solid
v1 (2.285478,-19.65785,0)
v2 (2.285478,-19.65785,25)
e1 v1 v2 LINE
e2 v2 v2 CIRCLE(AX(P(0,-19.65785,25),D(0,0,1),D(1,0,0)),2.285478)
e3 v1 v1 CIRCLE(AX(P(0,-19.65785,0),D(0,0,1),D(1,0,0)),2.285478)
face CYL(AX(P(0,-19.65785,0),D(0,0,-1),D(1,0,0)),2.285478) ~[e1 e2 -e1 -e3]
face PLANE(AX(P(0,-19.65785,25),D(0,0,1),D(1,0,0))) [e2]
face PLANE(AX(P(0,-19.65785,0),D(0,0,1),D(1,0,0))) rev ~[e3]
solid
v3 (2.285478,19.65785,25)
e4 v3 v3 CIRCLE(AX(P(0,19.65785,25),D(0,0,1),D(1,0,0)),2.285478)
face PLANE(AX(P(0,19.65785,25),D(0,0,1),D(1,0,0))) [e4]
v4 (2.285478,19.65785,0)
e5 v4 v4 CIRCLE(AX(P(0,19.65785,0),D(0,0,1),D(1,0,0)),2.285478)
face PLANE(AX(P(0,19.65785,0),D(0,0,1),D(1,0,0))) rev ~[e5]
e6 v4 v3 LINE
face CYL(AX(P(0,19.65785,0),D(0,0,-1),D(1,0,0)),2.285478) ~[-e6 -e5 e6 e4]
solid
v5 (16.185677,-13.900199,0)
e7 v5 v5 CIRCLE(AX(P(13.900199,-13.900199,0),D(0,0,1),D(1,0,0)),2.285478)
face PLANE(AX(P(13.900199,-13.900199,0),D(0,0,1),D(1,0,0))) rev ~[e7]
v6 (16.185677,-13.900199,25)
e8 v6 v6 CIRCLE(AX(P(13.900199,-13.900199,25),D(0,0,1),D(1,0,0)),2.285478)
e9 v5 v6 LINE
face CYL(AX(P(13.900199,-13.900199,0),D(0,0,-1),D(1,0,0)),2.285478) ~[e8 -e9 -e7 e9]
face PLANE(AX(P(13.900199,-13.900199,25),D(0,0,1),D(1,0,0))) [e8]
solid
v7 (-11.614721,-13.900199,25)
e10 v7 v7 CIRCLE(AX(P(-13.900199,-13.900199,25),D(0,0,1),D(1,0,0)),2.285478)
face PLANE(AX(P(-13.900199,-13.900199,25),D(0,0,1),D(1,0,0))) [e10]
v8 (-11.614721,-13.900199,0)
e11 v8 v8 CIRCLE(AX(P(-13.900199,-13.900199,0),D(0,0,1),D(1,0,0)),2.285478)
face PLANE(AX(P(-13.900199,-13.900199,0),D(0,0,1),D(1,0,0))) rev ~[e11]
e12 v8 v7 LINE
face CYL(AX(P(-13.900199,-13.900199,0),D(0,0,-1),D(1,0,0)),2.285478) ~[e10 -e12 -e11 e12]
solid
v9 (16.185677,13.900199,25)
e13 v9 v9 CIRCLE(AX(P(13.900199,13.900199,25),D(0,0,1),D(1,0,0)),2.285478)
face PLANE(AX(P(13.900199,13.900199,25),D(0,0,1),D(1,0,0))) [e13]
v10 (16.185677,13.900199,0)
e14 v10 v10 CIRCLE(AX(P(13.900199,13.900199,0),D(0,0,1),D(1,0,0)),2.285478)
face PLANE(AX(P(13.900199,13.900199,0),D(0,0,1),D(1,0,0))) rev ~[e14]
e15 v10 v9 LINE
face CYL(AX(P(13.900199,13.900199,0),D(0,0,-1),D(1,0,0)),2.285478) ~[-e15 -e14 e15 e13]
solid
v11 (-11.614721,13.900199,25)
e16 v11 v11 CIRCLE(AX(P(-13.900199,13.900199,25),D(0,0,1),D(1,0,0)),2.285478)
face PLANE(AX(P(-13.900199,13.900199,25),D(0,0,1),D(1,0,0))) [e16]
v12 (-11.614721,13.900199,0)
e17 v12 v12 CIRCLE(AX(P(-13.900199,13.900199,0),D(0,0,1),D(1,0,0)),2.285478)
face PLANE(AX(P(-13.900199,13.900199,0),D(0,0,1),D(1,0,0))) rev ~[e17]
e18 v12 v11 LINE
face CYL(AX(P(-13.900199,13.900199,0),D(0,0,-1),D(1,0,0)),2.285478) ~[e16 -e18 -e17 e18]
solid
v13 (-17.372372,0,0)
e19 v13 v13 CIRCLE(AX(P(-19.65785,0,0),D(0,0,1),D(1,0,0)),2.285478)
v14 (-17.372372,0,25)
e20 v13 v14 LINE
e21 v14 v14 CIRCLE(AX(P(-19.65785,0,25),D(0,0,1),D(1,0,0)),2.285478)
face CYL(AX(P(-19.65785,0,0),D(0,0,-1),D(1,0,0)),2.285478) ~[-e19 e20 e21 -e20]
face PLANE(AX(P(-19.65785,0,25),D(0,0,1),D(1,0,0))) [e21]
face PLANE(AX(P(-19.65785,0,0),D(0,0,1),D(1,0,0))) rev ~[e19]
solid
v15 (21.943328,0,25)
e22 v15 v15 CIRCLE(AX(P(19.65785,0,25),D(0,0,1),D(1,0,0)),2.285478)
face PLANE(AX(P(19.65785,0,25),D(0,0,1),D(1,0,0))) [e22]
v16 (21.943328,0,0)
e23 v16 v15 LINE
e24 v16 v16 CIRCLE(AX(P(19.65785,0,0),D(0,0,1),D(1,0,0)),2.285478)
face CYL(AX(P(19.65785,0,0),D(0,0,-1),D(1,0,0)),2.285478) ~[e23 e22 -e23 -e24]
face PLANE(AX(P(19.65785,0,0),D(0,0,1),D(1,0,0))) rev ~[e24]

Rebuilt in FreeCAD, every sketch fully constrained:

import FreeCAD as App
import Part
import Sketcher
from FreeCAD import Vector
Q = App.Units.Quantity

doc = App.newDocument("Part")
params = doc.addObject("Spreadsheet::Sheet", "Params")
for row, (alias, value) in enumerate([
    ("pad1_length", "25 mm"),
], start=1):
    params.set(f"A{row}", alias)
    params.set(f"B{row}", "=" + value)
    params.setAlias(f"B{row}", alias)

body = doc.addObject("PartDesign::Body", "Body")
body.AllowCompound = True

sketch1 = body.newObject("Sketcher::SketchObject", "Sketch")
sketch1.AttachmentSupport = (doc.getObject("XY_Plane"), [""])
sketch1.MapMode = "FlatFace"
sketch1.addGeometry(Part.Circle(Vector(19.7, 0, 0), Vector(0, 0, 1), 2.3), False)
sketch1.addGeometry(Part.Circle(Vector(13.9, 13.9, 0), Vector(0, 0, 1), 2.3), False)
sketch1.addGeometry(Part.Circle(Vector(0, 19.7, 0), Vector(0, 0, 1), 2.3), False)
sketch1.addGeometry(Part.Circle(Vector(-13.9, 13.9, 0), Vector(0, 0, 1), 2.3), False)
sketch1.addGeometry(Part.Circle(Vector(-19.7, 0, 0), Vector(0, 0, 1), 2.3), False)
sketch1.addGeometry(Part.Circle(Vector(-13.9, -13.9, 0), Vector(0, 0, 1), 2.3), False)
sketch1.addGeometry(Part.Circle(Vector(0, -19.7, 0), Vector(0, 0, 1), 2.3), False)
sketch1.addGeometry(Part.Circle(Vector(13.9, -13.9, 0), Vector(0, 0, 1), 2.3), False)
sketch1.addConstraint(Sketcher.Constraint("Equal", 0, 1))
sketch1.addConstraint(Sketcher.Constraint("Equal", 1, 2))
sketch1.addConstraint(Sketcher.Constraint("Equal", 2, 3))
sketch1.addConstraint(Sketcher.Constraint("Equal", 3, 4))
sketch1.addConstraint(Sketcher.Constraint("Equal", 4, 5))
sketch1.addConstraint(Sketcher.Constraint("Equal", 5, 6))
sketch1.addConstraint(Sketcher.Constraint("Equal", 6, 7))
sketch1.addConstraint(Sketcher.Constraint("Symmetric", 0, 3, 4, 3, -1, 1))
sketch1.addConstraint(Sketcher.Constraint("Symmetric", 1, 3, 5, 3, -1, 1))
sketch1.addConstraint(Sketcher.Constraint("Symmetric", 2, 3, 6, 3, -1, 1))
sketch1.addConstraint(Sketcher.Constraint("Symmetric", 3, 3, 7, 3, -1, 1))
sketch1.addConstraint(Sketcher.Constraint("Symmetric", 1, 3, 3, 3, -2))
sketch1.addConstraint(Sketcher.Constraint("PointOnObject", 0, 3, -1))
sketch1.addConstraint(Sketcher.Constraint("PointOnObject", 2, 3, -2))
sketch1.addConstraint(Sketcher.Constraint("Diameter", 0, Q("4.570956 mm")))
sketch1.addConstraint(Sketcher.Constraint("DistanceX", -1, 1, 1, 3, Q("13.900199 mm")))
sketch1.addConstraint(Sketcher.Constraint("DistanceY", -1, 1, 1, 3, Q("13.900199 mm")))
sketch1.addConstraint(Sketcher.Constraint("DistanceX", 4, 3, 0, 3, Q("39.3157 mm")))
sketch1.addConstraint(Sketcher.Constraint("DistanceY", -1, 1, 2, 3, Q("19.65785 mm")))
pad1 = body.newObject("PartDesign::Pad", "Pad")
pad1.Profile = sketch1
pad1.setExpression("Length", "Params.pad1_length")

doc.recompute()
